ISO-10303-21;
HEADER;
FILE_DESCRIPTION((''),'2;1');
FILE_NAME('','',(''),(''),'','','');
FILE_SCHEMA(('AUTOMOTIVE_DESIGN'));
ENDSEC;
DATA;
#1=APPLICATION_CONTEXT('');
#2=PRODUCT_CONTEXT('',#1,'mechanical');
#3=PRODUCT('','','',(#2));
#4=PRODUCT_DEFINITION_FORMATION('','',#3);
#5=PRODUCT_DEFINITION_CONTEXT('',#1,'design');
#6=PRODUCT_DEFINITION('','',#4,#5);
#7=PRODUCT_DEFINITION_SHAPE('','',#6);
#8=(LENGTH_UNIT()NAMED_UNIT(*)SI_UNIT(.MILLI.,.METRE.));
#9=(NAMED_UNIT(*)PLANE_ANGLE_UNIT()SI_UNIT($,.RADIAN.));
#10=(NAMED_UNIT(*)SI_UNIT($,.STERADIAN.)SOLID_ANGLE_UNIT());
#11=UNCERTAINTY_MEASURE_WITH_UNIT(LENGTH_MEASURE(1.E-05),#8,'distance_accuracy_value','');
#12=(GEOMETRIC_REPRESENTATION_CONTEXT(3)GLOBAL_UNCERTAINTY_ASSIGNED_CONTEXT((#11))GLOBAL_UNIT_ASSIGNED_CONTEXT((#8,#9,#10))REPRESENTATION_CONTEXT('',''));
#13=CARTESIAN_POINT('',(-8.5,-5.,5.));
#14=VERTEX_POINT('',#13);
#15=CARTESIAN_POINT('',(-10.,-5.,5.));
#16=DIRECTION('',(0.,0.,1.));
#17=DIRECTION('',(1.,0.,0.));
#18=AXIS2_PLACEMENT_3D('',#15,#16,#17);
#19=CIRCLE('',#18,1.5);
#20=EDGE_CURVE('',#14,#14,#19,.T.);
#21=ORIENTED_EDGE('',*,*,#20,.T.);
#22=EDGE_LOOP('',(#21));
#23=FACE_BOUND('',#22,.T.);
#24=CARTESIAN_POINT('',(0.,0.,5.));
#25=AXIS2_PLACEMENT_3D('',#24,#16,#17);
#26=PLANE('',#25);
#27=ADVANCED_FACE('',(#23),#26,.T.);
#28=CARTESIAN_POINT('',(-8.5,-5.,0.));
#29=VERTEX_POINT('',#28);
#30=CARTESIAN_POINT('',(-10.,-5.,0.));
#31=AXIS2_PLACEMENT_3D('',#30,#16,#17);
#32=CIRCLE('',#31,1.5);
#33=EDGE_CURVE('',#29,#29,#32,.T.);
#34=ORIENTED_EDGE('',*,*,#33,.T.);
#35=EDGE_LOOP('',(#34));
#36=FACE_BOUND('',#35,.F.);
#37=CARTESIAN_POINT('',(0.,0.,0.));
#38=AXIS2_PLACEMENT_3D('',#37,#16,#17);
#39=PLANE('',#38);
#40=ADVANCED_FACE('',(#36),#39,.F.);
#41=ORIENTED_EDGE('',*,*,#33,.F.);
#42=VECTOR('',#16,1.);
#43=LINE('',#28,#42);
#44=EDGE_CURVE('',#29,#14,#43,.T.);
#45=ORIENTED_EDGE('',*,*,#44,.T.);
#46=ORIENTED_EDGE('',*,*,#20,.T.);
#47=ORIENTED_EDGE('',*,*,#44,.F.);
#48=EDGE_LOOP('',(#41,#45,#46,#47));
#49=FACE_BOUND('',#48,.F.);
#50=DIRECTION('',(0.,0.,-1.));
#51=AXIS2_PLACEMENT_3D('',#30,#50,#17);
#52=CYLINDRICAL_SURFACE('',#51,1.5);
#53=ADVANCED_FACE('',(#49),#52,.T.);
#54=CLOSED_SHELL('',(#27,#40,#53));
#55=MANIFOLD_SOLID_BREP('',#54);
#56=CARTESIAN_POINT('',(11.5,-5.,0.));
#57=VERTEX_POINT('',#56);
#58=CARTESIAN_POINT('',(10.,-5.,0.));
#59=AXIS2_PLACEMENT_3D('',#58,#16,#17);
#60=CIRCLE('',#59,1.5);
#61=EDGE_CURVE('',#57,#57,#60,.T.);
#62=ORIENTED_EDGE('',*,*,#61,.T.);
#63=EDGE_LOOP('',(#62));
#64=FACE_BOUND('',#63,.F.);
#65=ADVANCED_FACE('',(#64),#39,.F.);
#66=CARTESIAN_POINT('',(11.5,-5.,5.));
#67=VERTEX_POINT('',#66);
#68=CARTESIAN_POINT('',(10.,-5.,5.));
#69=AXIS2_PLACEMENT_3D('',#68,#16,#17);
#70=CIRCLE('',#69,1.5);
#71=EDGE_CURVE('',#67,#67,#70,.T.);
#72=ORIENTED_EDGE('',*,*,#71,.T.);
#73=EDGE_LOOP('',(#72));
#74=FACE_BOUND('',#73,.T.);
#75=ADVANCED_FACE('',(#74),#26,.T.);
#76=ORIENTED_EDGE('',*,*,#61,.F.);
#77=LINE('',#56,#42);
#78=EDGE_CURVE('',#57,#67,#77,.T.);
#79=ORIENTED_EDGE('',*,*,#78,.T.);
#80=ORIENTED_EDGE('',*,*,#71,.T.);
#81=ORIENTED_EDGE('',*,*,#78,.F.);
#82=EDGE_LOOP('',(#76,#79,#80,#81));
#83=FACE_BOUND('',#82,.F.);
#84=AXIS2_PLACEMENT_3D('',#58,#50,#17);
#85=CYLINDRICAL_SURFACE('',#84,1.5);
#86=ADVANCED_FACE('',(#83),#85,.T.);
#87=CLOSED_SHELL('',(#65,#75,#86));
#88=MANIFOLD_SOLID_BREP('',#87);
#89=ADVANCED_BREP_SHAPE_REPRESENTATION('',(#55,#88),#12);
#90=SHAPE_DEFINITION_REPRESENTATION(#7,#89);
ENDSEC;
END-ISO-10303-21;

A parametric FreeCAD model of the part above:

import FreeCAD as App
import Part
import Sketcher
from FreeCAD import Vector
Q = App.Units.Quantity

doc = App.newDocument("Part")
body = doc.addObject("PartDesign::Body", "Body")
body.AllowCompound = True

sketch1 = body.newObject("Sketcher::SketchObject", "Sketch")
sketch1.AttachmentSupport = (doc.getObject("XY_Plane"), [""])
sketch1.MapMode = "FlatFace"
sketch1.addGeometry([
    Part.Circle(Vector(-10, -5, 0), Vector(0, 0, 1), 1.5),
    Part.Circle(Vector(10, -5, 0), Vector(0, 0, 1), 1.5),
], False)
sketch1.addConstraint([
    Sketcher.Constraint("Equal", 0, 1),
    Sketcher.Constraint("Symmetric", 0, 3, 1, 3, -2),
    Sketcher.Constraint("Diameter", 0, Q("3 mm")),
    Sketcher.Constraint("DistanceX", 0, 3, -1, 1, Q("10 mm")),
    Sketcher.Constraint("DistanceY", 0, 3, -1, 1, Q("5 mm")),
])
pad1 = body.newObject("PartDesign::Pad", "Pad")
pad1.Profile = sketch1
pad1.Length = 5

doc.recompute()
